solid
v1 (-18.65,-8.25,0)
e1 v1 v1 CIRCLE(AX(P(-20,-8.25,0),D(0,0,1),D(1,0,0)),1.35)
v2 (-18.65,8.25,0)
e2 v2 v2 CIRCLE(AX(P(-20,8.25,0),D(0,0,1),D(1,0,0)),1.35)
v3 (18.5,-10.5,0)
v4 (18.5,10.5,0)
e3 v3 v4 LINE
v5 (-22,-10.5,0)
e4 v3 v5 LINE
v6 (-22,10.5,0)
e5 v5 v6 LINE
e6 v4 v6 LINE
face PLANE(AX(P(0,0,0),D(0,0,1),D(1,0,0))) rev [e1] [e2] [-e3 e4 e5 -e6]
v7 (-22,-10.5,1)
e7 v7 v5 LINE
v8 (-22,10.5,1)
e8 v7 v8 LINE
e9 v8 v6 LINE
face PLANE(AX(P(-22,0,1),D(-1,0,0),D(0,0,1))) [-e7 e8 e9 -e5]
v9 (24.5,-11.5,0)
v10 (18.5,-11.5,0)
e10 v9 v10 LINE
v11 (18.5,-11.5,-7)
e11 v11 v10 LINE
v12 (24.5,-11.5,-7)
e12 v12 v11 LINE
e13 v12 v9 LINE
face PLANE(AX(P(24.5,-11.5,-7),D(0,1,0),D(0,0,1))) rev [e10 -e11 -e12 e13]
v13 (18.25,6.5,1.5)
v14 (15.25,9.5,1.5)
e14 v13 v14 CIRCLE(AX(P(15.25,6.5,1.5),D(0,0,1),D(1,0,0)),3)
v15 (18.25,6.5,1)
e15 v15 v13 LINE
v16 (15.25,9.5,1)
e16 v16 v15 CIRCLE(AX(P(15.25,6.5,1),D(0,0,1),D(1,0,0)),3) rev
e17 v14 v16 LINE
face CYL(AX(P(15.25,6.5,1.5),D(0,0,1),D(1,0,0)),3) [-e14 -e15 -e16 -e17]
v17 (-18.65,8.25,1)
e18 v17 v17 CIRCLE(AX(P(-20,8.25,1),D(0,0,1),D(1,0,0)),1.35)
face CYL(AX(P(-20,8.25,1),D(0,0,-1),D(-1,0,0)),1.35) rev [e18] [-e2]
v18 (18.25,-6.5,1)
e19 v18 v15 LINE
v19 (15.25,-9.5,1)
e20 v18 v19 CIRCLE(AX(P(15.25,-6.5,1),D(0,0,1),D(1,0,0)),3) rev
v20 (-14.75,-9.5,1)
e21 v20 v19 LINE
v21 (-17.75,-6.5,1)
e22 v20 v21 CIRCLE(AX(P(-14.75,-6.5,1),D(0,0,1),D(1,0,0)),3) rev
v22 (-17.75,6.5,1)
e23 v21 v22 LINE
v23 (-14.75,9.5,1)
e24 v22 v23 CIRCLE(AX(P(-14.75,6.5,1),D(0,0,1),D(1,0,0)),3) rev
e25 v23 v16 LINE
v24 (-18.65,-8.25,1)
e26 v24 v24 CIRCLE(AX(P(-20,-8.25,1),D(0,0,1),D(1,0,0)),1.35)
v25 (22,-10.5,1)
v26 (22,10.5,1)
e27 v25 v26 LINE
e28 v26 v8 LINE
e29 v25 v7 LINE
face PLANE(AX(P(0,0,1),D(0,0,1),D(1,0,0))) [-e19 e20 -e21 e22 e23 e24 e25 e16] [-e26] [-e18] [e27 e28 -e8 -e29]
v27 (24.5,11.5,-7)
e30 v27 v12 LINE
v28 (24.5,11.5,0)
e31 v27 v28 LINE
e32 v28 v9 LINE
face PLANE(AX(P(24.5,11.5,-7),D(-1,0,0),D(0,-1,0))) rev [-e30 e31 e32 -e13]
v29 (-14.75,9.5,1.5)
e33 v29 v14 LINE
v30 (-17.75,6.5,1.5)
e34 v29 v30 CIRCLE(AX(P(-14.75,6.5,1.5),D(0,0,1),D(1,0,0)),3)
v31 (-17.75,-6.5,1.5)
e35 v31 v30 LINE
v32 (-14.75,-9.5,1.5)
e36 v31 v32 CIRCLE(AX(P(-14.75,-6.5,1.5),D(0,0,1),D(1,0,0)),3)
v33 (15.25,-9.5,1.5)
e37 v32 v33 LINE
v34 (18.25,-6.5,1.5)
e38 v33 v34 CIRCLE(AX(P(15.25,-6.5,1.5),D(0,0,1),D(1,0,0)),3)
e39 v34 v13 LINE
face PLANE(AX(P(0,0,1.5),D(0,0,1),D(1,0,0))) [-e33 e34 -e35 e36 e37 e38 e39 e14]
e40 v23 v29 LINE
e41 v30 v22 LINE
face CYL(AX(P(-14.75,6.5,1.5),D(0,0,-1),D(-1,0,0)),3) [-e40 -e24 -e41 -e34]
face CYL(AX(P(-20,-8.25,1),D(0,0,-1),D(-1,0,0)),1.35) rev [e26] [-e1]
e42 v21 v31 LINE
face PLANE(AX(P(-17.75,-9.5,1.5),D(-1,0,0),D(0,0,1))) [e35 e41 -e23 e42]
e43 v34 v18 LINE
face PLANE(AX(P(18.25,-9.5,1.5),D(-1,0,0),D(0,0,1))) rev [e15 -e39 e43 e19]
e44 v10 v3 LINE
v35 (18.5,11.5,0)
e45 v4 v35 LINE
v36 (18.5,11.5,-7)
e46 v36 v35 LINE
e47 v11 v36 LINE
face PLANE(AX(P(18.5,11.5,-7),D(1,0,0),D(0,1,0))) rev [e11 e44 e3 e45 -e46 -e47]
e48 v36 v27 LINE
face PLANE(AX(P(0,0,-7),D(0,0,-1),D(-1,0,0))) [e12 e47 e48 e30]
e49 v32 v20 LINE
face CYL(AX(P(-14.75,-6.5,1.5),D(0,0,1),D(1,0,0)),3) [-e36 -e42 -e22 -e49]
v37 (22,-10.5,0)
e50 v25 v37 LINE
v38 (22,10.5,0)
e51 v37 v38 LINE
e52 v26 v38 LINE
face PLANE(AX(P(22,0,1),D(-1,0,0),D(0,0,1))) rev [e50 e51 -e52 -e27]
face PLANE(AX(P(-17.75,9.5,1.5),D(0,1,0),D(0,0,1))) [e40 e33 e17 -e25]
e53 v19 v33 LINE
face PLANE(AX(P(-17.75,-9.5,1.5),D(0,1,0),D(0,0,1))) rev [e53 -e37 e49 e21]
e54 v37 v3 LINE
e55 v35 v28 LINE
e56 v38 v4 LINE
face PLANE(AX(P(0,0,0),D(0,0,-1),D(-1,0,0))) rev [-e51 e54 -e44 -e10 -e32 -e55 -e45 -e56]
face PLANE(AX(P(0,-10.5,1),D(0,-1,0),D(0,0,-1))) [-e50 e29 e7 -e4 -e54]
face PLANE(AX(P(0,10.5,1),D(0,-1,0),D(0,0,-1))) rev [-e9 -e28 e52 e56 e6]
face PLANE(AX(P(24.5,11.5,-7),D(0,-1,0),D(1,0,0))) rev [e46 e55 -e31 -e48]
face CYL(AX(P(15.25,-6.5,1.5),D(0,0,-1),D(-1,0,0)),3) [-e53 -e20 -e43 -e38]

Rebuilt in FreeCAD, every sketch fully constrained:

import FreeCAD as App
import Part
import Sketcher

V = App.Vector
Q = App.Units.Quantity


def edges_at(feature, points):
    """Names of the edges that pass closest to the given points."""
    edges = feature.Shape.Edges
    near = lambda p: min(range(len(edges)), key=lambda i: edges[i].distToShape(Part.Vertex(*p))[0])
    return sorted({f"Edge{near(p) + 1}" for p in points})

doc = App.newDocument("Part")
body = doc.addObject("PartDesign::Body", "Body")

sketch1 = body.newObject("Sketcher::SketchObject", "Sketch")
sketch1.AttachmentSupport = (doc.getObject("XY_Plane"), [""])
sketch1.MapMode = "FlatFace"
sketch1.addGeometry([
    Part.LineSegment(V(-22, 10.5, 0), V(-22, -10.5, 0)),
    Part.LineSegment(V(-22, -10.5, 0), V(22, -10.5, 0)),
    Part.LineSegment(V(22, -10.5, 0), V(22, 10.5, 0)),
    Part.LineSegment(V(22, 10.5, 0), V(-22, 10.5, 0)),
    Part.Circle(V(-20, -8.25, 0), V(0, 0, 1), 1.35),
    Part.Circle(V(-20, 8.25, 0), V(0, 0, 1), 1.35),
], False)
sketch1.addConstraint([
    Sketcher.Constraint("Coincident", 0, 2, 1, 1),
    Sketcher.Constraint("Coincident", 1, 2, 2, 1),
    Sketcher.Constraint("Coincident", 2, 2, 3, 1),
    Sketcher.Constraint("Coincident", 3, 2, 0, 1),
    Sketcher.Constraint("Vertical", 0),
    Sketcher.Constraint("Horizontal", 1),
    Sketcher.Constraint("Vertical", 2),
    Sketcher.Constraint("Horizontal", 3),
    Sketcher.Constraint("Equal", 4, 5),
    Sketcher.Constraint("Symmetric", 0, 2, 2, 2, -1, 1),
    Sketcher.Constraint("Symmetric", 4, 3, 5, 3, -1),
    Sketcher.Constraint("Diameter", 4, Q("2.7 mm")),
    Sketcher.Constraint("DistanceX", 1, 1, 1, 2, Q("44 mm")),
    Sketcher.Constraint("DistanceY", 0, 2, 0, 1, Q("21 mm")),
    Sketcher.Constraint("DistanceX", 4, 3, -1, 1, Q("20 mm")),
    Sketcher.Constraint("DistanceY", 4, 3, 5, 3, Q("16.5 mm")),
])
pad1 = body.newObject("PartDesign::Pad", "Pad")
pad1.Profile = sketch1
pad1.Length = 1

sketch2 = body.newObject("Sketcher::SketchObject", "Sketch001")
sketch2.AttachmentSupport = (doc.getObject("XY_Plane"), [""])
sketch2.MapMode = "FlatFace"
sketch2.AttachmentOffset = App.Placement(V(0, 0, 1), App.Rotation())
sketch2.addGeometry([
    Part.LineSegment(V(-17.75, 9.5, 0), V(-17.75, -9.5, 0)),
    Part.LineSegment(V(-17.75, -9.5, 0), V(18.25, -9.5, 0)),
    Part.LineSegment(V(18.25, -9.5, 0), V(18.25, 9.5, 0)),
    Part.LineSegment(V(18.25, 9.5, 0), V(-17.75, 9.5, 0)),
], False)
sketch2.addConstraint([
    Sketcher.Constraint("Coincident", 0, 2, 1, 1),
    Sketcher.Constraint("Coincident", 1, 2, 2, 1),
    Sketcher.Constraint("Coincident", 2, 2, 3, 1),
    Sketcher.Constraint("Coincident", 3, 2, 0, 1),
    Sketcher.Constraint("Vertical", 0),
    Sketcher.Constraint("Horizontal", 1),
    Sketcher.Constraint("Vertical", 2),
    Sketcher.Constraint("Horizontal", 3),
    Sketcher.Constraint("DistanceX", 1, 1, 1, 2, Q("36 mm")),
    Sketcher.Constraint("DistanceY", 0, 2, 0, 1, Q("19 mm")),
    Sketcher.Constraint("DistanceY", 0, 2, -1, 1, Q("9.5 mm")),
    Sketcher.Constraint("DistanceX", 0, 2, -1, 1, Q("17.75 mm")),
])
pad2 = body.newObject("PartDesign::Pad", "Pad001")
pad2.Profile = sketch2
pad2.Length = 0.5
doc.recompute()

fillet = body.newObject("PartDesign::Fillet", "Fillet")
fillet.Base = (pad2, edges_at(pad2, [
    (18.25, 9.5, 1.25),
    (-17.75, 9.5, 1.25),
    (-17.75, -9.5, 1.25),
    (18.25, -9.5, 1.25),
]))
fillet.Radius = 3

sketch3 = body.newObject("Sketcher::SketchObject", "Sketch002")
sketch3.AttachmentSupport = (doc.getObject("XY_Plane"), [""])
sketch3.MapMode = "FlatFace"
sketch3.addGeometry([
    Part.LineSegment(V(24.5, 11.5, 0), V(24.5, -11.5, 0)),
    Part.LineSegment(V(24.5, -11.5, 0), V(18.5, -11.5, 0)),
    Part.LineSegment(V(18.5, -11.5, 0), V(18.5, 11.5, 0)),
    Part.LineSegment(V(18.5, 11.5, 0), V(24.5, 11.5, 0)),
], False)
sketch3.addConstraint([
    Sketcher.Constraint("Coincident", 0, 2, 1, 1),
    Sketcher.Constraint("Coincident", 1, 2, 2, 1),
    Sketcher.Constraint("Coincident", 2, 2, 3, 1),
    Sketcher.Constraint("Coincident", 3, 2, 0, 1),
    Sketcher.Constraint("Vertical", 0),
    Sketcher.Constraint("Horizontal", 1),
    Sketcher.Constraint("Vertical", 2),
    Sketcher.Constraint("Horizontal", 3),
    Sketcher.Constraint("DistanceX", 1, 2, 1, 1, Q("6 mm")),
    Sketcher.Constraint("DistanceY", 0, 2, 0, 1, Q("23 mm")),
    Sketcher.Constraint("DistanceX", -1, 1, 0, 2, Q("24.5 mm")),
    Sketcher.Constraint("DistanceY", 0, 2, -1, 1, Q("11.5 mm")),
])
pad3 = body.newObject("PartDesign::Pad", "Pad002")
pad3.Profile = sketch3
pad3.Length = 7
pad3.Reversed = True

doc.recompute()
